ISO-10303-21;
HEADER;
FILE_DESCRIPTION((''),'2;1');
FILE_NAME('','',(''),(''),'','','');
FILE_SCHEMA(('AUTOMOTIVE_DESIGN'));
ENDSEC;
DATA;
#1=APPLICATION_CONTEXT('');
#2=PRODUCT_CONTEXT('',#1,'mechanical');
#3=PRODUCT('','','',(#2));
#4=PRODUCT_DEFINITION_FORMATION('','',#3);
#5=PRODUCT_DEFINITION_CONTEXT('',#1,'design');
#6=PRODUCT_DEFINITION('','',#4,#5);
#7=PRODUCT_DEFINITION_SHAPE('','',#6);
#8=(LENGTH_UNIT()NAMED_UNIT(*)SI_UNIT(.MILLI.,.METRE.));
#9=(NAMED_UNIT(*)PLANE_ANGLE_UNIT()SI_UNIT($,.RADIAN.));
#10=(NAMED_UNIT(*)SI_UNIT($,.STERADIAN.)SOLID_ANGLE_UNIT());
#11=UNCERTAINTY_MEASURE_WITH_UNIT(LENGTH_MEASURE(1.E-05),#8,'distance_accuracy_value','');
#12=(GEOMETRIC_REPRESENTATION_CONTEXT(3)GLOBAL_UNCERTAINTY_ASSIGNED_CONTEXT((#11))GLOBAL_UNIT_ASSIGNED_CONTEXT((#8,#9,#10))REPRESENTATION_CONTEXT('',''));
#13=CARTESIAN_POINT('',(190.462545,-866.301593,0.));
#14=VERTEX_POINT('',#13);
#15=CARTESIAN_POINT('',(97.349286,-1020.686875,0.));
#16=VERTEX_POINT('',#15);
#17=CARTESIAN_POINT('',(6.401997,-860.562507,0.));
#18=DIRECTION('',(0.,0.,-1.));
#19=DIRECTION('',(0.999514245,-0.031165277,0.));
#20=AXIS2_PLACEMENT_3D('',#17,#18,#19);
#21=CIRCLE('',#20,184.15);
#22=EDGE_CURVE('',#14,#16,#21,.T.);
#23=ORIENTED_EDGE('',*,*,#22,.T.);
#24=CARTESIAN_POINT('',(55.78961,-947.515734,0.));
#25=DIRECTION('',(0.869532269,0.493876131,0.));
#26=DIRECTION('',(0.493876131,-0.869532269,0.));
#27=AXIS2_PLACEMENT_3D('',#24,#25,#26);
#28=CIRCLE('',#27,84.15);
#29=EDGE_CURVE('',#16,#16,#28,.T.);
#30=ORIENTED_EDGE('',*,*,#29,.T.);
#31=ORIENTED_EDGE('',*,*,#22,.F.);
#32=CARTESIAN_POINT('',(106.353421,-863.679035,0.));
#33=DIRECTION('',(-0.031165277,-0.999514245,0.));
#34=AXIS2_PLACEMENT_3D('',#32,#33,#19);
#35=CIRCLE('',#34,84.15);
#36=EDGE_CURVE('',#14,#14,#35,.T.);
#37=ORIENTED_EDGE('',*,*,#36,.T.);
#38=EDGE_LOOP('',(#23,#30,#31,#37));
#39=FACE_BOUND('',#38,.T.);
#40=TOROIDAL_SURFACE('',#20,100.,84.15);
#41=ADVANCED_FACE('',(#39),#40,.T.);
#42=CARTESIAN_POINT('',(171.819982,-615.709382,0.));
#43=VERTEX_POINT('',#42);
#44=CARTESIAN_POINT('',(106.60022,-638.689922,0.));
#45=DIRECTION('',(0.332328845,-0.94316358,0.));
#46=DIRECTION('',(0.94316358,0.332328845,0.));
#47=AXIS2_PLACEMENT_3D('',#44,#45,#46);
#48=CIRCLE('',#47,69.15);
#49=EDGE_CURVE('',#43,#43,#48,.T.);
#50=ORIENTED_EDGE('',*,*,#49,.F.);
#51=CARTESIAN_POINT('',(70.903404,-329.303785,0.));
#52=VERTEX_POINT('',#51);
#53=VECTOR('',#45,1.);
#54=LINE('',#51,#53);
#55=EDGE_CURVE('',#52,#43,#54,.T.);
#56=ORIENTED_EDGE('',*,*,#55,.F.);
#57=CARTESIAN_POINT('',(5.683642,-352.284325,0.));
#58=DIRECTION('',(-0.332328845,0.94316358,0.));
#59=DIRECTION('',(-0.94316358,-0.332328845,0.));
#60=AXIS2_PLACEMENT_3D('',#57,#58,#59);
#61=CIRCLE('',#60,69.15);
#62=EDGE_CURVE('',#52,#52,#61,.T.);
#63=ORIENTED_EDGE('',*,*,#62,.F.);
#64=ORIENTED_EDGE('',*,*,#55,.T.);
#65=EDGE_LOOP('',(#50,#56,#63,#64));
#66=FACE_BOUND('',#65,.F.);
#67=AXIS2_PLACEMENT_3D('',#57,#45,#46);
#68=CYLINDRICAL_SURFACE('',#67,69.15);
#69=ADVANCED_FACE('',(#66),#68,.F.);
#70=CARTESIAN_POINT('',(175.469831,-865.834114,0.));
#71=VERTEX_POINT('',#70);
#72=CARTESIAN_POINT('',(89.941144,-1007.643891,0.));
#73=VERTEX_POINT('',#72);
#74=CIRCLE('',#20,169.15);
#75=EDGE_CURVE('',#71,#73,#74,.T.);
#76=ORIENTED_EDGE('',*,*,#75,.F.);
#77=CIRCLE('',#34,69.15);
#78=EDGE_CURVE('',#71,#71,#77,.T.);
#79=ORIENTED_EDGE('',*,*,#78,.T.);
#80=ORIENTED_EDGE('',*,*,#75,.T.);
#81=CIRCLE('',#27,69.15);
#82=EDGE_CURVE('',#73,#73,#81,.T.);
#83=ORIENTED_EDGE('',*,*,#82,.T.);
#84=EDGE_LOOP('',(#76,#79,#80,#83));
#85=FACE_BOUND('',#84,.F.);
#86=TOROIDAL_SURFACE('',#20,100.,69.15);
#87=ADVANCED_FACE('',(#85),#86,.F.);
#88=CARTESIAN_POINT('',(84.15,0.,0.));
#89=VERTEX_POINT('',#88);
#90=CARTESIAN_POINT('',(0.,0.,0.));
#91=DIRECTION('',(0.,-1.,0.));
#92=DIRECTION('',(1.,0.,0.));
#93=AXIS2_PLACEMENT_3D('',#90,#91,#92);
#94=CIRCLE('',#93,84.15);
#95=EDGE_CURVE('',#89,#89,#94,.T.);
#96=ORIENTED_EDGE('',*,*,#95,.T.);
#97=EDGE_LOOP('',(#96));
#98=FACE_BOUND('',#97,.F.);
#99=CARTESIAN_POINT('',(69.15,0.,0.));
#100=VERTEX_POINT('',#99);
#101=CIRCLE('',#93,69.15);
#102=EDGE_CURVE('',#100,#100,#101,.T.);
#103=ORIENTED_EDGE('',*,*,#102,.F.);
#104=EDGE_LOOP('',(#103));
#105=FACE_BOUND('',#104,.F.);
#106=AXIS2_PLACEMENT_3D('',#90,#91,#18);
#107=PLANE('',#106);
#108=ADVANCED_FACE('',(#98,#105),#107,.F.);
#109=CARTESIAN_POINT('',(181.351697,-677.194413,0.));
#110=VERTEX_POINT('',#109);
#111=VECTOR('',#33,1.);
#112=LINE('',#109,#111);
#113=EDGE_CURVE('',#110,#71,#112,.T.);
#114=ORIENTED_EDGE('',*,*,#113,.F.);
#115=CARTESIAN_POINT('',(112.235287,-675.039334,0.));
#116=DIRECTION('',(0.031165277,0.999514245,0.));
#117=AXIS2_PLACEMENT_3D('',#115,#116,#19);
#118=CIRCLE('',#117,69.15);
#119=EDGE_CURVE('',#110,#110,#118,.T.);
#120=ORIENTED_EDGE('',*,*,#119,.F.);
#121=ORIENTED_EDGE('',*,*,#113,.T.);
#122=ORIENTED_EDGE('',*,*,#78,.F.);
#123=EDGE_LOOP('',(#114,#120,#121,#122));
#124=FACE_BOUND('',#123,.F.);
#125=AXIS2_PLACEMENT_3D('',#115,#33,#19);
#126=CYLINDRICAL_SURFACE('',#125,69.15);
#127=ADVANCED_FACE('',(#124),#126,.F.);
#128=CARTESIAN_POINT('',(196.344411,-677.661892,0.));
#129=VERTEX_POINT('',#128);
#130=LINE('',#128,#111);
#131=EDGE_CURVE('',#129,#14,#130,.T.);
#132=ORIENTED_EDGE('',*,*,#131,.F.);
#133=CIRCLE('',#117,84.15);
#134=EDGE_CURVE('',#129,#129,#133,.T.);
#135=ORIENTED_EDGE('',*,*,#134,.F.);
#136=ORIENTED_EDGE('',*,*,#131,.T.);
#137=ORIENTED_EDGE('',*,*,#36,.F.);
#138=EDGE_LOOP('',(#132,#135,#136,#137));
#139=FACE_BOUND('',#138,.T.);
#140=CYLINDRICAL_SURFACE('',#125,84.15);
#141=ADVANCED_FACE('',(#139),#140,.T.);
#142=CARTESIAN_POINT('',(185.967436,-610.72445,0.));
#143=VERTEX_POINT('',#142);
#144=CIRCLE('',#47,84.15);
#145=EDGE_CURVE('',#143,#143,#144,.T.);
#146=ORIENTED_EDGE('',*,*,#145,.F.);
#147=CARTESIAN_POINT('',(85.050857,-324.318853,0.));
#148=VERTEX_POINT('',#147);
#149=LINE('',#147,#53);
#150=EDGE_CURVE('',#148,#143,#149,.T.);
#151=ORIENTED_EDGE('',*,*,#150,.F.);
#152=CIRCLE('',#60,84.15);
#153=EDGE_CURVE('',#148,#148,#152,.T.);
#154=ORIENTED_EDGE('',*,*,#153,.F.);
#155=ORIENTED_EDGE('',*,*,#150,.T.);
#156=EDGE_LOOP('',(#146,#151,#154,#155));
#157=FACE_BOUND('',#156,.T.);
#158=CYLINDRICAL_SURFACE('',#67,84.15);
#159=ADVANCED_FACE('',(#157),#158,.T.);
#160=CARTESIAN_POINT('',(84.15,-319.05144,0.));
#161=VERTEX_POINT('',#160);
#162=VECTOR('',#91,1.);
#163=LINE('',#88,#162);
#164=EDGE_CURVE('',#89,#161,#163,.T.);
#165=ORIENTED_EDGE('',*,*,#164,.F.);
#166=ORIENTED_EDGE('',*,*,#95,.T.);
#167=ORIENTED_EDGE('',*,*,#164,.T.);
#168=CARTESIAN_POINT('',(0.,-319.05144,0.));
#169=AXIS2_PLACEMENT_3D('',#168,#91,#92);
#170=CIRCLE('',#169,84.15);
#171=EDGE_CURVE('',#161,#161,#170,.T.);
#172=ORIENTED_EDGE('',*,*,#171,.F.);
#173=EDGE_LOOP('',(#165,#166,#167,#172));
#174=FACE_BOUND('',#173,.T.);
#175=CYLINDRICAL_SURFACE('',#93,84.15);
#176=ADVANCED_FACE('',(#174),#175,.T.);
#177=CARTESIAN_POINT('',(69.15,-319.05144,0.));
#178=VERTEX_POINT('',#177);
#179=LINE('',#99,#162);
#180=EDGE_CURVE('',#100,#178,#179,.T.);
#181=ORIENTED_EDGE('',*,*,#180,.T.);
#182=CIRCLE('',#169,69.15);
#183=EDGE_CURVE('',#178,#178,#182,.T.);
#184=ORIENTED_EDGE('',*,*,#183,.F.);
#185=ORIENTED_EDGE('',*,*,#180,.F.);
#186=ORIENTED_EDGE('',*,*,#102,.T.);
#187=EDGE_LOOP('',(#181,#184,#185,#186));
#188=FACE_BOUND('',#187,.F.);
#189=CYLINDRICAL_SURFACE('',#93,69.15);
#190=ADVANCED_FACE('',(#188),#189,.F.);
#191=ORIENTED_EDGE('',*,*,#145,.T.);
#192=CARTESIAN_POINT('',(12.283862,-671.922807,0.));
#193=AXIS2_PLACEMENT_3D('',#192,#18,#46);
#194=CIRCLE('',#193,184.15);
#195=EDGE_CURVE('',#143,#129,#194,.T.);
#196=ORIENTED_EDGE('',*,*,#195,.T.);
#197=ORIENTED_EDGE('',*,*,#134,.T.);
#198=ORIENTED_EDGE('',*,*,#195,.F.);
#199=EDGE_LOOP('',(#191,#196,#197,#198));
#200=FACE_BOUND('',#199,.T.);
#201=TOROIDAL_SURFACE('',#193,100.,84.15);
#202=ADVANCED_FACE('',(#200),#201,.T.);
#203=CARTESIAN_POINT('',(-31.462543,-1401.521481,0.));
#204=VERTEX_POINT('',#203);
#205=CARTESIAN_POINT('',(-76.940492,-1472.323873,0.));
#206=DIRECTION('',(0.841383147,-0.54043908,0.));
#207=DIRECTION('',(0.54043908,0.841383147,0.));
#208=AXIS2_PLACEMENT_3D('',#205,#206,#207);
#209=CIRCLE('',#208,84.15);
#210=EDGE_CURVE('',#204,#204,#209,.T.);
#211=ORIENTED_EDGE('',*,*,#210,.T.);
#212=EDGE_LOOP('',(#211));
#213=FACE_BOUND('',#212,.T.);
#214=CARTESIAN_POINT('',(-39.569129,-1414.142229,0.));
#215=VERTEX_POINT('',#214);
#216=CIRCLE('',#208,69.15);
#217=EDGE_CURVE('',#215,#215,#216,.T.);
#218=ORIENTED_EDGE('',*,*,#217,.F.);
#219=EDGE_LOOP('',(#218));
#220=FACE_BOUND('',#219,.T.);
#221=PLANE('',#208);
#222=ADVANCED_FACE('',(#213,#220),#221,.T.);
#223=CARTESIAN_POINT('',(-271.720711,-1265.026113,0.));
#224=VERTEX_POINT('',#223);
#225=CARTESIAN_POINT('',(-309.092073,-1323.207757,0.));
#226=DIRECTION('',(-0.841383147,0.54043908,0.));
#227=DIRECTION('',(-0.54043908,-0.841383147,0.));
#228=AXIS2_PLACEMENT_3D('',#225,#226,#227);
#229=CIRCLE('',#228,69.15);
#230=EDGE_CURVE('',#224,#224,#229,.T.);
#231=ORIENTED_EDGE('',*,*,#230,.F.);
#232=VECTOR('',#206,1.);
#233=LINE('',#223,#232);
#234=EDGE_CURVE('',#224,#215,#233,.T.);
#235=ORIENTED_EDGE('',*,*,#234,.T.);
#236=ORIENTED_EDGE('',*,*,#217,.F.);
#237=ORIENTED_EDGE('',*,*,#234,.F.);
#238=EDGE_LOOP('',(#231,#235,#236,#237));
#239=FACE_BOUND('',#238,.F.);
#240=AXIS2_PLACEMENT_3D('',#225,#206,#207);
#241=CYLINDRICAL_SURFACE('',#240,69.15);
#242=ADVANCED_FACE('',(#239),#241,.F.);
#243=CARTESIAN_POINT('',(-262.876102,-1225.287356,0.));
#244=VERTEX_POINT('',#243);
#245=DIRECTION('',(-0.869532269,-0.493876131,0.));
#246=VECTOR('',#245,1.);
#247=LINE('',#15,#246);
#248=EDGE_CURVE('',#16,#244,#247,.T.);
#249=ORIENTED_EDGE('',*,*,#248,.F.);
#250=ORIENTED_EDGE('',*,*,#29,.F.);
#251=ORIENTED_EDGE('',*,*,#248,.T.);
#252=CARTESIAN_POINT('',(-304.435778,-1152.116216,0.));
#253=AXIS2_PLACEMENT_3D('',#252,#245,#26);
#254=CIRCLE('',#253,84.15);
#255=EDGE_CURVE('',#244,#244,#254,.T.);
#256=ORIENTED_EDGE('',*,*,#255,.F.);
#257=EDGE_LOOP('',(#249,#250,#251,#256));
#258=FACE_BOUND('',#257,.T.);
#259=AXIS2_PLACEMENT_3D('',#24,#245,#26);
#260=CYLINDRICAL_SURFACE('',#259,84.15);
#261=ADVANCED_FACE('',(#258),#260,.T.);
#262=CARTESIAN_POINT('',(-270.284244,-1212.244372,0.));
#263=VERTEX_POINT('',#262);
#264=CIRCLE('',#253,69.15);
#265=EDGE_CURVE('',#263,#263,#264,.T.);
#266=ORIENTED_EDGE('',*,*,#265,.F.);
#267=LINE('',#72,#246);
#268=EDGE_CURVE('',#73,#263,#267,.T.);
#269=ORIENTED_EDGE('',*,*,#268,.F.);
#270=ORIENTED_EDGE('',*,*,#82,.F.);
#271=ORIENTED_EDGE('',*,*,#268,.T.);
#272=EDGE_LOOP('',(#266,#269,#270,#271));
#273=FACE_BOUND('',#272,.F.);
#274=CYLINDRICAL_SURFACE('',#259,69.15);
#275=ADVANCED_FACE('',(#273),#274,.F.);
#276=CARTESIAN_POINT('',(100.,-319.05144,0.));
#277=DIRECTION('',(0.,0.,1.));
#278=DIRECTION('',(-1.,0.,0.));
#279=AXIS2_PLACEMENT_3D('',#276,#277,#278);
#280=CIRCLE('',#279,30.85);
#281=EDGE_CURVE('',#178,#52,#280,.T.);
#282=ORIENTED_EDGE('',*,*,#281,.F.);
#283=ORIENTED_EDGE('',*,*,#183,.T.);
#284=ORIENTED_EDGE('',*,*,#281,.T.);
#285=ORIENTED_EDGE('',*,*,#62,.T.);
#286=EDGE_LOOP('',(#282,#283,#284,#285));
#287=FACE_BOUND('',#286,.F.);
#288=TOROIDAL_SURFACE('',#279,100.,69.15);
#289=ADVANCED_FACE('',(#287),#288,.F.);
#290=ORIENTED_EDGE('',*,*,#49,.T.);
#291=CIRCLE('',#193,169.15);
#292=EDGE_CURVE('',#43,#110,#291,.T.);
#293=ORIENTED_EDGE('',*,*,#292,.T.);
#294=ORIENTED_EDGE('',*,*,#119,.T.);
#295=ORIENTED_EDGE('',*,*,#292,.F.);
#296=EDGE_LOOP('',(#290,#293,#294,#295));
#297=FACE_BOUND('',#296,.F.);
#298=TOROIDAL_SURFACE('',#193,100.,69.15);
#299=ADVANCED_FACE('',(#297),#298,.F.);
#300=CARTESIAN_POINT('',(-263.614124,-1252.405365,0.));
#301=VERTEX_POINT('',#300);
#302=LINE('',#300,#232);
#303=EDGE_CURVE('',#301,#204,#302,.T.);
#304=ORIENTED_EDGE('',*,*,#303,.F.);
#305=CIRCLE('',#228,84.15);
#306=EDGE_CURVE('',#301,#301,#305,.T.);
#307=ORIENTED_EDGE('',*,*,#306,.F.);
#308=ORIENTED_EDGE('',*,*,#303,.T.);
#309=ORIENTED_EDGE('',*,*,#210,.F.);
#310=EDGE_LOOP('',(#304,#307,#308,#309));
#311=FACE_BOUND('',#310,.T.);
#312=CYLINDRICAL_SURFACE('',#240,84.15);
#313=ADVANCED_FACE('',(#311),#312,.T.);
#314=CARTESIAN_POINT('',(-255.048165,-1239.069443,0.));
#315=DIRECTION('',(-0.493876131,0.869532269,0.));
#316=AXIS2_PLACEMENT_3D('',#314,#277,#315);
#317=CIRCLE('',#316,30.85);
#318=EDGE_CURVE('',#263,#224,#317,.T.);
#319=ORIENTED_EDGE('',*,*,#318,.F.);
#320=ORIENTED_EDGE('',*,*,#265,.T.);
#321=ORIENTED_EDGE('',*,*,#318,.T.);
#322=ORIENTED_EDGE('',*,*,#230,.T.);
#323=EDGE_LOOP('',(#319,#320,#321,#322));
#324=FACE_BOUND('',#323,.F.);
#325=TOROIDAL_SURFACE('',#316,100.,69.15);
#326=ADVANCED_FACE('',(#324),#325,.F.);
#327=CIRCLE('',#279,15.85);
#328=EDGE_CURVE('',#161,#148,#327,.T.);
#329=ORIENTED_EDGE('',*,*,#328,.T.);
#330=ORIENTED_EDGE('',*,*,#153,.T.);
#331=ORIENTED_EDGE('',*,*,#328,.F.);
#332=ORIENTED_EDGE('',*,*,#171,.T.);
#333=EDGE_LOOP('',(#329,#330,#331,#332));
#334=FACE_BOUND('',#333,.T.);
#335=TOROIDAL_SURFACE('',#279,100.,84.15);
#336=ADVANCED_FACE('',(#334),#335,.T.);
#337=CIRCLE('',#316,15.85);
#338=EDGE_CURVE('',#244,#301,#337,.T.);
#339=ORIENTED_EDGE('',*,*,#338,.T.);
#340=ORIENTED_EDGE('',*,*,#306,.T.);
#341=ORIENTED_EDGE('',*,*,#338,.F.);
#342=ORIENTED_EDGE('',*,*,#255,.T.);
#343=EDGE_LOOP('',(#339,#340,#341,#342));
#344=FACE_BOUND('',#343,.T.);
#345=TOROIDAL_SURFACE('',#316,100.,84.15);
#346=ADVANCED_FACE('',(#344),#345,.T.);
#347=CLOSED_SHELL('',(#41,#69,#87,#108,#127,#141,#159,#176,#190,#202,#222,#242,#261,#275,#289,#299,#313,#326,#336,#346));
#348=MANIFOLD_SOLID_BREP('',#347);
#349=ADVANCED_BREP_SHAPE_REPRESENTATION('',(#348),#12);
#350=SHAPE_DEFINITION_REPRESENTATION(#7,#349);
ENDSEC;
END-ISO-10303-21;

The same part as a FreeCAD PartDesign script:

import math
import FreeCAD as App
import Part
import Sketcher

V = App.Vector

doc = App.newDocument("Part")
body = doc.addObject("PartDesign::Body", "Body")

# Sketch on XZ plane
sketch1 = body.newObject("Sketcher::SketchObject", "Sketch")
sketch1.AttachmentSupport = (doc.getObject("XZ_Plane"), [""])
sketch1.MapMode = "FlatFace"
sketch1.addGeometry([
    Part.Circle(V(0, 0, 0), V(0, 0, 1), 84),
    Part.Circle(V(0, 0, 0), V(0, 0, 1), 69),
], False)
sketch1.addConstraint([
    Sketcher.Constraint("Coincident", 0, 3, -1, 1),
    Sketcher.Constraint("Coincident", 1, 3, -1, 1),
    Sketcher.Constraint("Diameter", 0, 168.3),
    Sketcher.Constraint("Diameter", 1, 138.3),
])

# Sketch on XY plane
sketch2 = body.newObject("Sketcher::SketchObject", "Sketch001")
sketch2.AttachmentSupport = (doc.getObject("XY_Plane"), [""])
sketch2.MapMode = "FlatFace"
sketch2.addGeometry([
    Part.LineSegment(V(0, 0, 0), V(0, -319, 0)),  # 0
    Part.ArcOfCircle(Part.Circle(V(100, -319, 0), V(0, 0, 1), 100), math.radians(180), math.radians(199.41)),  # 1
    Part.LineSegment(V(6, -352, 0), V(107, -639, 0)),  # 2
    Part.ArcOfCircle(Part.Circle(V(12, -672, 0), V(0, 0, 1), 100), math.radians(-2), math.radians(19)),  # 3
    Part.LineSegment(V(112, -675, 0), V(106, -864, 0)),  # 4
    Part.ArcOfCircle(Part.Circle(V(6, -861, 0), V(0, 0, 1), 100), math.radians(-60), math.radians(-2)),  # 5
    Part.LineSegment(V(56, -948, 0), V(-304, -1152, 0)),  # 6
    Part.ArcOfCircle(Part.Circle(V(-255, -1239, 0), V(0, 0, 1), 100), math.radians(120), math.radians(237)),  # 7
    Part.LineSegment(V(-309, -1323, 0), V(-77, -1472, 0)),  # 8
], False)
sketch2.addConstraint([
    Sketcher.Constraint("Tangent", 0, 2, 1, 1),
    Sketcher.Constraint("Tangent", 1, 2, 2, 1),
    Sketcher.Constraint("Tangent", 2, 2, 3, 2),
    Sketcher.Constraint("Tangent", 3, 1, 4, 1),
    Sketcher.Constraint("Tangent", 4, 2, 5, 2),
    Sketcher.Constraint("Tangent", 5, 1, 6, 1),
    Sketcher.Constraint("Tangent", 6, 2, 7, 1),
    Sketcher.Constraint("Tangent", 7, 2, 8, 1),
    Sketcher.Constraint("Vertical", 0),
    Sketcher.Constraint("Coincident", 0, 1, -1, 1),
    Sketcher.Constraint("Equal", 1, 3),
    Sketcher.Constraint("Equal", 3, 5),
    Sketcher.Constraint("Equal", 5, 7),
    Sketcher.Constraint("Radius", 1, 100.0),
    Sketcher.Constraint("DistanceY", 0, 2, 0, 1, 319.05144),
    Sketcher.Constraint("DistanceY", 5, 3, 3, 3, 188.639701),
    Sketcher.Constraint("DistanceX", 4, 2, 2, 2, 0.246799),
    Sketcher.Constraint("DistanceX", 6, 2, 4, 2, 410.789199),
    Sketcher.Constraint("DistanceX", 8, 2, 5, 1, 132.730101),
    Sketcher.Constraint("Distance", 2, 303.664818),
    Sketcher.Constraint("DistanceX", -1, 1, 2, 2, 106.60022),
    Sketcher.Constraint("DistanceX", 8, 2, -1, 1, 76.940492),
    Sketcher.Constraint("DistanceY", 7, 2, 6, 2, 171.091542),
])
doc.recompute()

additivepipe = body.newObject("PartDesign::AdditivePipe", "AdditivePipe")
additivepipe.Profile = sketch1
additivepipe.Spine = (sketch2, ["Edge1", "Edge2", "Edge3", "Edge4", "Edge5", "Edge6", "Edge7", "Edge8", "Edge9"])

doc.recompute()
